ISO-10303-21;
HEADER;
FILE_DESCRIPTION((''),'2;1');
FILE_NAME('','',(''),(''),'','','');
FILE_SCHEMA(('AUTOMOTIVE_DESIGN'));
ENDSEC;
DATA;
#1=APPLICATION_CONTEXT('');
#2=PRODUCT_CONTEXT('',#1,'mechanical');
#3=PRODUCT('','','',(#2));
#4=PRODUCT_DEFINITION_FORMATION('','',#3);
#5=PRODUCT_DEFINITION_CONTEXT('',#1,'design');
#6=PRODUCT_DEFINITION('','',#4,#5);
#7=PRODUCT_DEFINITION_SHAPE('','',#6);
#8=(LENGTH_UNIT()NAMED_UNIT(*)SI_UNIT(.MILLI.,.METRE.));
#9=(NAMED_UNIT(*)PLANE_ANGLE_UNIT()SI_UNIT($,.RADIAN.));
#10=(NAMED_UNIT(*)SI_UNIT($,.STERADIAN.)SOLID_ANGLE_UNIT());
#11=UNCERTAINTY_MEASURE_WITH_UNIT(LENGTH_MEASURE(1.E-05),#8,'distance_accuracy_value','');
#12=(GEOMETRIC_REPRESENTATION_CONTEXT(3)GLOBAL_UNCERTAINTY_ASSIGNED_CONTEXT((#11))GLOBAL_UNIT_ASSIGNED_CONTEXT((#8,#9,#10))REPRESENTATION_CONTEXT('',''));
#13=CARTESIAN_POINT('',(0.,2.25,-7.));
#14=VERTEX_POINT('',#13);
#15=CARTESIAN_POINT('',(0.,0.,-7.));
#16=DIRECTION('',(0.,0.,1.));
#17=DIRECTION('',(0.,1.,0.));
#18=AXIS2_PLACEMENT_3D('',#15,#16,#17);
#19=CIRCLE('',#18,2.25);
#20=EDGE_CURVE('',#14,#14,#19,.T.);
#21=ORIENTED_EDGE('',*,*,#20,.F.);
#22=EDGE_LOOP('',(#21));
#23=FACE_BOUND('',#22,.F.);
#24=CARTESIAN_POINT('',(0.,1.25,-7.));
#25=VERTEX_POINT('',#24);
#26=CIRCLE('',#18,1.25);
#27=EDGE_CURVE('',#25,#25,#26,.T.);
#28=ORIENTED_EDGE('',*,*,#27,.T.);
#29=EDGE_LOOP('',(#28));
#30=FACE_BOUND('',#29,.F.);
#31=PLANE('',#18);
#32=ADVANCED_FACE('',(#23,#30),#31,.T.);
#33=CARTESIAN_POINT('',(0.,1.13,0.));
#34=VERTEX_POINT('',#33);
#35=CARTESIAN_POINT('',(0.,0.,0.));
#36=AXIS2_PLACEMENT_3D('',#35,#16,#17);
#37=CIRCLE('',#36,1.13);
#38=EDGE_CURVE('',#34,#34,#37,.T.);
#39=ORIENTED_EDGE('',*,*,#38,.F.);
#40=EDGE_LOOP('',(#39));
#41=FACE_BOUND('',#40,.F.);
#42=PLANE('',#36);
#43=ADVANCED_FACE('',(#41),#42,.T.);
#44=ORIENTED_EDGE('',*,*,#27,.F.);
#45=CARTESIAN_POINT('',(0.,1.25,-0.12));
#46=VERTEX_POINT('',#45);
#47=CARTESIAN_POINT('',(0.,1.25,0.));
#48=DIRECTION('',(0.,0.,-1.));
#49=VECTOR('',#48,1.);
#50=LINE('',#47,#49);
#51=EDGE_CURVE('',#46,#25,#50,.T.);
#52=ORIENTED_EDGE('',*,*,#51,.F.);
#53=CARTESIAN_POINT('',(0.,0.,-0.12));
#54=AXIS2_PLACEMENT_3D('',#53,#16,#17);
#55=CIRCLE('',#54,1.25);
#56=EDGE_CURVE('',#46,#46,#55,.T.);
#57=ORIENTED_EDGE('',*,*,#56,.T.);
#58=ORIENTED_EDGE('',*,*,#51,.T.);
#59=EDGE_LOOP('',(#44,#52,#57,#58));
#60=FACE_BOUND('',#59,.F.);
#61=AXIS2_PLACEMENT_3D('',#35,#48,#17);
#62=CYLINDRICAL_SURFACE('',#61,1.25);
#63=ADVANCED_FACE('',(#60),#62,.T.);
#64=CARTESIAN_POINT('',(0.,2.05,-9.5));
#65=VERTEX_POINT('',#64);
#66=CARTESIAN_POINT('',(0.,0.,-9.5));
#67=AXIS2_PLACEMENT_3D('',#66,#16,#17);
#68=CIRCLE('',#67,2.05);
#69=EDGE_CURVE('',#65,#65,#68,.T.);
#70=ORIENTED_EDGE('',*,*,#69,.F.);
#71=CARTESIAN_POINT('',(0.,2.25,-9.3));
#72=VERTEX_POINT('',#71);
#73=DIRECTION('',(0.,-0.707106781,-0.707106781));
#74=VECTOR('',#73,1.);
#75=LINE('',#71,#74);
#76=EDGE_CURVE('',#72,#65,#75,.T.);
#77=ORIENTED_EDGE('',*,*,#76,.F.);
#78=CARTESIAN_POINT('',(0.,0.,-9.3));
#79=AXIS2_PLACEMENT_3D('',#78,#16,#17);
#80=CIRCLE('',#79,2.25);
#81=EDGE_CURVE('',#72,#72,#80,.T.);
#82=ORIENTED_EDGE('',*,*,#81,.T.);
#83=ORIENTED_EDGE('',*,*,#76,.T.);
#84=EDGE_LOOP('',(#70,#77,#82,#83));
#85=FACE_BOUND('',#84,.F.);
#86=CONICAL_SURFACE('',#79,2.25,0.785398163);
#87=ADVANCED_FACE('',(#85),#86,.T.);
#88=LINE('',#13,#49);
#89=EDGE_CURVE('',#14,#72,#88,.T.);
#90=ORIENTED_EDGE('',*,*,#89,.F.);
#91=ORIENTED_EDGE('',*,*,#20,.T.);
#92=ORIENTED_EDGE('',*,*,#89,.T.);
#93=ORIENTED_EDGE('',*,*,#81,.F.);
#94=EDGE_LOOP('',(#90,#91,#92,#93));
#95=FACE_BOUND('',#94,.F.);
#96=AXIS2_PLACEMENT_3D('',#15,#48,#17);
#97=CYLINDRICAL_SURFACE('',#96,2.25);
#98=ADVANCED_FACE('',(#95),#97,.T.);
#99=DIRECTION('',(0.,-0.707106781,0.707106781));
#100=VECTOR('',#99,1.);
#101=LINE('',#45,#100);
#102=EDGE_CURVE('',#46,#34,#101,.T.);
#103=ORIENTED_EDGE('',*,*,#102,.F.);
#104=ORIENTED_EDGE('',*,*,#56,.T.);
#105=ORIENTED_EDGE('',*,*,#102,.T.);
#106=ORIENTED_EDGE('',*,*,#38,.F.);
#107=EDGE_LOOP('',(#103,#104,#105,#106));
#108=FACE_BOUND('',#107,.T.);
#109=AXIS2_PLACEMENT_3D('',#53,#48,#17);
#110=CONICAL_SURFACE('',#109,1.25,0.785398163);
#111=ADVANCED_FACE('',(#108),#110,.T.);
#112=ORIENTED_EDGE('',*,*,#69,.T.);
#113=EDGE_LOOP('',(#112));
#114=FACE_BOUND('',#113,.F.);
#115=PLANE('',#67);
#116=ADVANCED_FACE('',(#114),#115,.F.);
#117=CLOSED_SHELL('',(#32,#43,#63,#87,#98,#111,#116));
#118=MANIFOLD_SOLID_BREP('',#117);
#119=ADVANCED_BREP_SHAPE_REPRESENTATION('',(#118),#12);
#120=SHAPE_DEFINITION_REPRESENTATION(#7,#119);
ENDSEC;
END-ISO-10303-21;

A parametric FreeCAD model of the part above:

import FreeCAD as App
import Part
import Sketcher

V = App.Vector
Q = App.Units.Quantity

doc = App.newDocument("Part")
body = doc.addObject("PartDesign::Body", "Body")

# Sketch on YZ plane
sketch1 = body.newObject("Sketcher::SketchObject", "Sketch")
sketch1.AttachmentSupport = (doc.getObject("YZ_Plane"), [""])
sketch1.MapMode = "FlatFace"
sketch1.addGeometry(Part.LineSegment(V(1.13, 0, 0), V(0, 0, 0)), False)
sketch1.addGeometry(Part.LineSegment(V(0, 0, 0), V(0, -9.5, 0)), False)
sketch1.addGeometry(Part.LineSegment(V(0, -9.5, 0), V(2.05, -9.5, 0)), False)
sketch1.addGeometry(Part.LineSegment(V(2.05, -9.5, 0), V(2.25, -9.3, 0)), False)
sketch1.addGeometry(Part.LineSegment(V(2.25, -9.3, 0), V(2.25, -7, 0)), False)
sketch1.addGeometry(Part.LineSegment(V(2.25, -7, 0), V(1.25, -7, 0)), False)
sketch1.addGeometry(Part.LineSegment(V(1.25, -7, 0), V(1.25, -0.12, 0)), False)
sketch1.addGeometry(Part.LineSegment(V(1.25, -0.12, 0), V(1.13, 0, 0)), False)
sketch1.addConstraint(Sketcher.Constraint("Coincident", 0, 2, 1, 1))
sketch1.addConstraint(Sketcher.Constraint("Coincident", 1, 2, 2, 1))
sketch1.addConstraint(Sketcher.Constraint("Coincident", 2, 2, 3, 1))
sketch1.addConstraint(Sketcher.Constraint("Coincident", 3, 2, 4, 1))
sketch1.addConstraint(Sketcher.Constraint("Coincident", 4, 2, 5, 1))
sketch1.addConstraint(Sketcher.Constraint("Coincident", 5, 2, 6, 1))
sketch1.addConstraint(Sketcher.Constraint("Coincident", 6, 2, 7, 1))
sketch1.addConstraint(Sketcher.Constraint("Coincident", 7, 2, 0, 1))
sketch1.addConstraint(Sketcher.Constraint("Horizontal", 0))
sketch1.addConstraint(Sketcher.Constraint("Vertical", 1))
sketch1.addConstraint(Sketcher.Constraint("Horizontal", 2))
sketch1.addConstraint(Sketcher.Constraint("Vertical", 4))
sketch1.addConstraint(Sketcher.Constraint("Horizontal", 5))
sketch1.addConstraint(Sketcher.Constraint("Vertical", 6))
sketch1.addConstraint(Sketcher.Constraint("Coincident", 0, 2, -1, 1))
sketch1.addConstraint(Sketcher.Constraint("Perpendicular", 3, 7))
sketch1.addConstraint(Sketcher.Constraint("Angle", 3, Q("45 deg")))
sketch1.addConstraint(Sketcher.Constraint("DistanceY", 4, 2, -1, 1, 7.0))
sketch1.addConstraint(Sketcher.Constraint("DistanceX", 2, 2, 3, 2, 0.2))
sketch1.addConstraint(Sketcher.Constraint("DistanceY", 2, 2, 4, 2, 2.5))
sketch1.addConstraint(Sketcher.Constraint("DistanceX", 5, 2, 5, 1, 1.0))
sketch1.addConstraint(Sketcher.Constraint("DistanceX", -1, 1, 3, 2, 2.25))
sketch1.addConstraint(Sketcher.Constraint("DistanceY", 6, 2, -1, 1, 0.12))
revolution = body.newObject("PartDesign::Revolution", "Revolution")
revolution.Profile = sketch1
revolution.ReferenceAxis = (sketch1, ["V_Axis"])
revolution.Angle = 360

doc.recompute()
